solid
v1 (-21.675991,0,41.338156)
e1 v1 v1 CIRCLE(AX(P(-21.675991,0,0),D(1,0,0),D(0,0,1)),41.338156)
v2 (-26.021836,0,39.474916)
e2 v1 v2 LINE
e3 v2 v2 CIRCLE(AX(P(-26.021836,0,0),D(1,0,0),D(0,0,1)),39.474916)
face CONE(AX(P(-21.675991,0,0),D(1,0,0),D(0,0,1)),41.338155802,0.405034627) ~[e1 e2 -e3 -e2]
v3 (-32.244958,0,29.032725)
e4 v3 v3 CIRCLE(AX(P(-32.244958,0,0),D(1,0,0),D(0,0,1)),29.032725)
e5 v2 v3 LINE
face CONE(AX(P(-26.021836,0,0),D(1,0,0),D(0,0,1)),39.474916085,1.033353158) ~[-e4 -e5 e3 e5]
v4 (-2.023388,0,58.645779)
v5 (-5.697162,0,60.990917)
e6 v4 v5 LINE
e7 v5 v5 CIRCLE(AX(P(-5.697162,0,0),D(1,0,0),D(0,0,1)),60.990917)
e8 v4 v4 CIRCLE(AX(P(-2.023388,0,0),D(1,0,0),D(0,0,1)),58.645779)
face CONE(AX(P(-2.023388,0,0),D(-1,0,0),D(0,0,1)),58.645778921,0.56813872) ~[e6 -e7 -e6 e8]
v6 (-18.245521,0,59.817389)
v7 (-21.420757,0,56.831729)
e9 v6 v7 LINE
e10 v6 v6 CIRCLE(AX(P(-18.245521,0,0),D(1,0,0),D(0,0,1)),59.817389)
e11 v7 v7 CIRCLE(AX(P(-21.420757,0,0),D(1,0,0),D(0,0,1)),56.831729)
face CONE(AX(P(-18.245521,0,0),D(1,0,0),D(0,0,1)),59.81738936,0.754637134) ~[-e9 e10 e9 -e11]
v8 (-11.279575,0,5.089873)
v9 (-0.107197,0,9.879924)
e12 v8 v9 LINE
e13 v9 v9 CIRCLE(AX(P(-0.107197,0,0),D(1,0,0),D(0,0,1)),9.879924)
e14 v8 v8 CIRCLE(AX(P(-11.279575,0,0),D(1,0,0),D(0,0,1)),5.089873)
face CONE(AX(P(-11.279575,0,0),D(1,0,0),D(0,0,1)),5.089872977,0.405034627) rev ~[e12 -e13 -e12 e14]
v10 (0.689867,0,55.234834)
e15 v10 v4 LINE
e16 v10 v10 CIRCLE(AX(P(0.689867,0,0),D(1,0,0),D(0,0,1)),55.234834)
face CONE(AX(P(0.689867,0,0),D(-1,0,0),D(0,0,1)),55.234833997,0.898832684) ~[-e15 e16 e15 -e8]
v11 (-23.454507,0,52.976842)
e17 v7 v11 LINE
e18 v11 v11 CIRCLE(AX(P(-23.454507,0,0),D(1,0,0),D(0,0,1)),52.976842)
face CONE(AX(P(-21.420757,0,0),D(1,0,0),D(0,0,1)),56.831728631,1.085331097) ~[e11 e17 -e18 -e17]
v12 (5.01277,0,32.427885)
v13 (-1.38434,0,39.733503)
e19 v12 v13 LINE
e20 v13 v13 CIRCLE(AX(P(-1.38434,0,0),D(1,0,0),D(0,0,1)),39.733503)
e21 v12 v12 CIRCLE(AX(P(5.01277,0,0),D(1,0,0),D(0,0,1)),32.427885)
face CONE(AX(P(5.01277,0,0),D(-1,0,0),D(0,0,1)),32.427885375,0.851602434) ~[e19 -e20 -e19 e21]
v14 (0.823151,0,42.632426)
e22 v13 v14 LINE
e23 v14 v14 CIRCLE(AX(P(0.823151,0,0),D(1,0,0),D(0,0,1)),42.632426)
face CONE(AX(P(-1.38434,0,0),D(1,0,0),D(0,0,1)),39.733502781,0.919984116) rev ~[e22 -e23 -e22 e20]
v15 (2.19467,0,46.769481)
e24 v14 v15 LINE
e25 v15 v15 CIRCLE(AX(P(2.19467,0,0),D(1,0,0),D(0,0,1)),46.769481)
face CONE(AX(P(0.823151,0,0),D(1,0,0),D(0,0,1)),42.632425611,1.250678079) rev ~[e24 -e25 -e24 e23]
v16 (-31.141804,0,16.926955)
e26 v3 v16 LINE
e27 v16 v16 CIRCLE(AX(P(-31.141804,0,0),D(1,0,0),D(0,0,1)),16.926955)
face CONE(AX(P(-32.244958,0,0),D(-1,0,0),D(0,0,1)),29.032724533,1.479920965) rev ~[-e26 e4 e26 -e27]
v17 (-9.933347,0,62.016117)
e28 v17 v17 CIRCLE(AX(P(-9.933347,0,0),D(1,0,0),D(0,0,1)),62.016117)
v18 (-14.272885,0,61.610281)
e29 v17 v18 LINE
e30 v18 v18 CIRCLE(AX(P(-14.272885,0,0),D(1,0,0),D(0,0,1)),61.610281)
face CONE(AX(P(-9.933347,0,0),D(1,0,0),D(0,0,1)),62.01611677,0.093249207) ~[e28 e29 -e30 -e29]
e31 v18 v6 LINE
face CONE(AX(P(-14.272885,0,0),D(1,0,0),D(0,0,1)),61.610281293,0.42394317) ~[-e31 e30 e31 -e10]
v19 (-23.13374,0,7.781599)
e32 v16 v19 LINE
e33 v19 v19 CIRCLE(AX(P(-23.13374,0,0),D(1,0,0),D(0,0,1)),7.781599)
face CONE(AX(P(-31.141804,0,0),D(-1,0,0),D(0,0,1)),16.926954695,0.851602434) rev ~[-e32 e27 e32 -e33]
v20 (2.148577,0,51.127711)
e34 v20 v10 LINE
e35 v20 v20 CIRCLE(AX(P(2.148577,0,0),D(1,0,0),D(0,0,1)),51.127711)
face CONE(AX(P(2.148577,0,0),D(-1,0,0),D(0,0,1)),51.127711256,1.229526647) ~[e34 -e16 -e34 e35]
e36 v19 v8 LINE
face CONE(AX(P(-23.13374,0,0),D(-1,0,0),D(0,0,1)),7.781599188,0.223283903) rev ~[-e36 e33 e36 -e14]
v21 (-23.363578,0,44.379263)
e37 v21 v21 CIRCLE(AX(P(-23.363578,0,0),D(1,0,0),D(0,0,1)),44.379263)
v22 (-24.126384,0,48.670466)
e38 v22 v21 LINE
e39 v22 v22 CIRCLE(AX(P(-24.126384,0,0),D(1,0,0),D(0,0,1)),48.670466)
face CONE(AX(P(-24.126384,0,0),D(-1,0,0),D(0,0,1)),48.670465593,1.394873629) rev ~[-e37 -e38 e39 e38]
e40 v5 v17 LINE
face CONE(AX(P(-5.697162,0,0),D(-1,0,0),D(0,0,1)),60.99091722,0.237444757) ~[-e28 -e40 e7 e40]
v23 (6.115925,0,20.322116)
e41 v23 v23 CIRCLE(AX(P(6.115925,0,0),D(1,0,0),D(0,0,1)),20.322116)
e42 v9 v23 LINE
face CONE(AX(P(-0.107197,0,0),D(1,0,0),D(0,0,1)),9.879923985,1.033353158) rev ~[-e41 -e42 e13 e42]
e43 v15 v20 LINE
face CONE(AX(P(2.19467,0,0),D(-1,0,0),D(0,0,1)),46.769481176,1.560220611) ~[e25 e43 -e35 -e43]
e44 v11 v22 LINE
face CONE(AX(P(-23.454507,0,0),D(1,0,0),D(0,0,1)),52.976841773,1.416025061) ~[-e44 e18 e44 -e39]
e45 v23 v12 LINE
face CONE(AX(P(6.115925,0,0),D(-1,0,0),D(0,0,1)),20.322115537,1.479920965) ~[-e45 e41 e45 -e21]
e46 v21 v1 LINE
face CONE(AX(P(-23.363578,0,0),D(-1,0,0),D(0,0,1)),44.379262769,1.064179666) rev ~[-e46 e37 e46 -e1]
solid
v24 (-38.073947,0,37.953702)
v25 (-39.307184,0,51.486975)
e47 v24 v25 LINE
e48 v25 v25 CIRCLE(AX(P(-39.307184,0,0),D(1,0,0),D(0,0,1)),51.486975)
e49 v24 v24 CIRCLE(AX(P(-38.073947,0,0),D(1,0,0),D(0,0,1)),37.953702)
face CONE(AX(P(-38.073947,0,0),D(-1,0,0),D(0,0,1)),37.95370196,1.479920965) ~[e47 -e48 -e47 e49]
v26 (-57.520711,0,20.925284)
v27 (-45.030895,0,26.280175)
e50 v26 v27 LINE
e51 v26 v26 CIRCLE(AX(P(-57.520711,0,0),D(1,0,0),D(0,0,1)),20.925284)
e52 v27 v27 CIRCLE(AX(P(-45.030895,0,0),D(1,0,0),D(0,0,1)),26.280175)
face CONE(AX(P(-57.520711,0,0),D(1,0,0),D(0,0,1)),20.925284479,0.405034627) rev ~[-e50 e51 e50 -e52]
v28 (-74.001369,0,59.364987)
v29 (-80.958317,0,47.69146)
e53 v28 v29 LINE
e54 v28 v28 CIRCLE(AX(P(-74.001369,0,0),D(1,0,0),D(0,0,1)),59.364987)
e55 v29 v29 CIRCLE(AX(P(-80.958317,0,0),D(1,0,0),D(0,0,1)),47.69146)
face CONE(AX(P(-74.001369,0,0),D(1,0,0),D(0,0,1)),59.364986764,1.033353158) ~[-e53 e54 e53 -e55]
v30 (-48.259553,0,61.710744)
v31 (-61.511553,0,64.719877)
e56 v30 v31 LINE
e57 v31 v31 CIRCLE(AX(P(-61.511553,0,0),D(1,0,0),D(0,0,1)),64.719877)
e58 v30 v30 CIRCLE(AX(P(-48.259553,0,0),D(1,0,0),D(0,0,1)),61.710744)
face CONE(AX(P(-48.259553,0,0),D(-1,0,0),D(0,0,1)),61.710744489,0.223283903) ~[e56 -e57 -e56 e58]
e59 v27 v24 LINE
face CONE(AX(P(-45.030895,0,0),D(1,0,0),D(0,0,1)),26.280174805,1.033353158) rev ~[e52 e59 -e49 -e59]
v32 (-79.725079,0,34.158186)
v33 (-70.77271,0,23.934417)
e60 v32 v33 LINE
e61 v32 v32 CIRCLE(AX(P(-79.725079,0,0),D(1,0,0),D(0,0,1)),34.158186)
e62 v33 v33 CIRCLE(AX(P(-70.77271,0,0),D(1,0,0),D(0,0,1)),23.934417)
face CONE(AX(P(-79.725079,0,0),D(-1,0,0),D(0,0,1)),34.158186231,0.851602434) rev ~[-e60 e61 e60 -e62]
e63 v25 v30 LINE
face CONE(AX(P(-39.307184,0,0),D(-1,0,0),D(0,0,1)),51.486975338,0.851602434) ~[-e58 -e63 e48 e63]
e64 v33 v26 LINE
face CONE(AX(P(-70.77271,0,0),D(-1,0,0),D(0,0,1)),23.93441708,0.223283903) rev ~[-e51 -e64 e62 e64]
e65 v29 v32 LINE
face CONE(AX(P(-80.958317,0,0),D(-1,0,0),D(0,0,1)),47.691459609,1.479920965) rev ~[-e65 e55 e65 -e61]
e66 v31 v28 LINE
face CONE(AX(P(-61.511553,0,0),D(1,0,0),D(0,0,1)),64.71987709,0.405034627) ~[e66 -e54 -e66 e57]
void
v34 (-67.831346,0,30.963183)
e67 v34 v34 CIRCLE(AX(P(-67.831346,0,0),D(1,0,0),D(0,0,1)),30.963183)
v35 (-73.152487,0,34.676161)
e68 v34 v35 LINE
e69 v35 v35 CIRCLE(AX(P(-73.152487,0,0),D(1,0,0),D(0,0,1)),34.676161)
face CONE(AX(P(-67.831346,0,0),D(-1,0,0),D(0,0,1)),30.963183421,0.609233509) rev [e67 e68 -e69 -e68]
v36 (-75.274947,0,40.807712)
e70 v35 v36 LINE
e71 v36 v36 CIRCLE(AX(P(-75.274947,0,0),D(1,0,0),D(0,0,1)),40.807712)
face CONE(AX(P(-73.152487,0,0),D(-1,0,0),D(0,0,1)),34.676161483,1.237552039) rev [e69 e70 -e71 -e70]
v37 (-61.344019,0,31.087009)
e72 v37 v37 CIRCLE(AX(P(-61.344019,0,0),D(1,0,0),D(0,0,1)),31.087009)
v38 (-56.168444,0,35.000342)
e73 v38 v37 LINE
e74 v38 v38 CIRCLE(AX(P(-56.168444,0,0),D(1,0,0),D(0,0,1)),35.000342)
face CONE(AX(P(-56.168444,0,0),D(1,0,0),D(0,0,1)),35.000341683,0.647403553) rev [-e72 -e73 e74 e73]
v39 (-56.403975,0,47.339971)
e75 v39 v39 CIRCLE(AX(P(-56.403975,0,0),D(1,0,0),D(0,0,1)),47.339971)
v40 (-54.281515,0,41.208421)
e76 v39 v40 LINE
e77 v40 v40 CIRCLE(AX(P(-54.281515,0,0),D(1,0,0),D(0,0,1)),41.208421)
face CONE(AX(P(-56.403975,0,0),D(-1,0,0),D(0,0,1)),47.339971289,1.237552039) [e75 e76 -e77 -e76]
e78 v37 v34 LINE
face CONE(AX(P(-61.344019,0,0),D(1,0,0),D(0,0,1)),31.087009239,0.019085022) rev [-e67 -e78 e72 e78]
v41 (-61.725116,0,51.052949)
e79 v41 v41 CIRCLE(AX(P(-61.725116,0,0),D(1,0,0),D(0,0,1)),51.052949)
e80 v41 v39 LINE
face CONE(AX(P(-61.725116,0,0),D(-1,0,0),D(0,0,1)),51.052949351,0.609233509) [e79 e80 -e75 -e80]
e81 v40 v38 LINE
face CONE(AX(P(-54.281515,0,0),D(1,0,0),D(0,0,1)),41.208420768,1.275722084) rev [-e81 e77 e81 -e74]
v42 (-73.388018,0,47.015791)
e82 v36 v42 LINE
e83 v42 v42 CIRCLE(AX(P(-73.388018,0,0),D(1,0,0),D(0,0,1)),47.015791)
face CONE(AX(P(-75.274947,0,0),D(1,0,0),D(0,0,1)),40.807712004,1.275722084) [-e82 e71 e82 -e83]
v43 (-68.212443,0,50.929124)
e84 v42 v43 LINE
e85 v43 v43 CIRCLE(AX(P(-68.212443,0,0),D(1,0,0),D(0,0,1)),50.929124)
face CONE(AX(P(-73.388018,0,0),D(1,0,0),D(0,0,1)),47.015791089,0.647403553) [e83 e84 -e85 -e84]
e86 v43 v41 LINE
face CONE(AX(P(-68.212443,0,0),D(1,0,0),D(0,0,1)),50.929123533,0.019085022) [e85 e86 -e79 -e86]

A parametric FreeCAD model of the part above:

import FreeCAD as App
import Part
import Sketcher

V = App.Vector
Q = App.Units.Quantity


def add_polygon(sketch, points):
    """Adds a closed chain of lines whose ends are joined by coincident constraints."""
    first, n = sketch.GeometryCount, len(points)
    for a, b in zip(points, points[1:] + points[:1]):
        sketch.addGeometry(Part.LineSegment(App.Vector(*a, 0), App.Vector(*b, 0)), False)
    for i in range(n):
        sketch.addConstraint(Sketcher.Constraint("Coincident", first + i, 2, first + (i + 1) % n, 1))

doc = App.newDocument("Part")
body = doc.addObject("PartDesign::Body", "Body")

sketch1 = doc.addObject("Sketcher::SketchObject", "Sketch")
body.addObject(sketch1)
sketch1.AttachmentSupport = (doc.XZ_Plane, [""])
sketch1.MapMode = "FlatFace"
add_polygon(sketch1, [(-45, 26), (-38, 38), (-39, 51), (-48, 62), (-62, 65), (-74, 59), (-81, 48), (-80, 34), (-71, 24), (-58, 21)])
add_polygon(sketch1, [(-68, 51), (-62, 51), (-56, 47), (-54, 41), (-56, 35), (-61, 31), (-68, 31), (-73, 35), (-75, 41), (-73, 47)])
sketch1.addConstraint(Sketcher.Constraint("Parallel", 0, 5))
sketch1.addConstraint(Sketcher.Constraint("Parallel", 1, 6))
sketch1.addConstraint(Sketcher.Constraint("Parallel", 2, 7))
sketch1.addConstraint(Sketcher.Constraint("Parallel", 3, 8))
sketch1.addConstraint(Sketcher.Constraint("Parallel", 4, 9))
sketch1.addConstraint(Sketcher.Constraint("Parallel", 10, 15))
sketch1.addConstraint(Sketcher.Constraint("Parallel", 11, 16))
sketch1.addConstraint(Sketcher.Constraint("Parallel", 12, 17))
sketch1.addConstraint(Sketcher.Constraint("Parallel", 13, 18))
sketch1.addConstraint(Sketcher.Constraint("Parallel", 14, 19))
sketch1.addConstraint(Sketcher.Constraint("Equal", 0, 1))
sketch1.addConstraint(Sketcher.Constraint("Equal", 1, 2))
sketch1.addConstraint(Sketcher.Constraint("Equal", 2, 3))
sketch1.addConstraint(Sketcher.Constraint("Equal", 3, 4))
sketch1.addConstraint(Sketcher.Constraint("Equal", 4, 5))
sketch1.addConstraint(Sketcher.Constraint("Equal", 5, 6))
sketch1.addConstraint(Sketcher.Constraint("Equal", 6, 7))
sketch1.addConstraint(Sketcher.Constraint("Equal", 10, 11))
sketch1.addConstraint(Sketcher.Constraint("Equal", 11, 12))
sketch1.addConstraint(Sketcher.Constraint("Equal", 12, 13))
sketch1.addConstraint(Sketcher.Constraint("Equal", 13, 14))
sketch1.addConstraint(Sketcher.Constraint("Equal", 14, 15))
sketch1.addConstraint(Sketcher.Constraint("Equal", 15, 16))
sketch1.addConstraint(Sketcher.Constraint("Equal", 16, 17))
sketch1.addConstraint(Sketcher.Constraint("DistanceX", 3, 2, 2, 2, Q("13.251999 mm")))
sketch1.addConstraint(Sketcher.Constraint("DistanceY", -1, 1, 0, 2, Q("37.953702 mm")))
sketch1.addConstraint(Sketcher.Constraint("DistanceY", 1, 2, 3, 2, Q("13.232902 mm")))
sketch1.addConstraint(Sketcher.Constraint("DistanceY", 6, 2, 4, 2, Q("25.206801 mm")))
sketch1.addConstraint(Sketcher.Constraint("DistanceX", 5, 2, 10, 2, Q("19.233201 mm")))
sketch1.addConstraint(Sketcher.Constraint("DistanceX", 10, 2, 12, 2, Q("7.443601 mm")))
sketch1.addConstraint(Sketcher.Constraint("DistanceY", 8, 2, 15, 2, Q("10.037899 mm")))
sketch1.addConstraint(Sketcher.Constraint("DistanceY", 16, 2, 5, 2, Q("13.015298 mm")))
sketch1.addConstraint(Sketcher.Constraint("DistanceX", 5, 2, 18, 2, Q("7.570299 mm")))
sketch1.addConstraint(Sketcher.Constraint("Distance", 10, Q("6.488509 mm")))
sketch1.addConstraint(Sketcher.Constraint("DistanceX", 4, 2, -1, 1, Q("74.001369 mm")))
sketch1.addConstraint(Sketcher.Constraint("DistanceY", -1, 1, 5, 2, Q("47.69146 mm")))
sketch1.addConstraint(Sketcher.Constraint("DistanceX", 6, 2, -1, 1, Q("79.725079 mm")))
sketch1.addConstraint(Sketcher.Constraint("DistanceX", 7, 2, -1, 1, Q("70.77271 mm")))
sketch1.addConstraint(Sketcher.Constraint("DistanceY", -1, 1, 10, 2, Q("51.052949 mm")))
sketch1.addConstraint(Sketcher.Constraint("DistanceY", -1, 1, 13, 2, Q("35.000342 mm")))
revolution = doc.addObject("PartDesign::Revolution", "Revolution")
body.addObject(revolution)
revolution.Profile = sketch1
revolution.ReferenceAxis = (sketch1, ["H_Axis"])
revolution.Angle = 360
body2 = doc.addObject("PartDesign::Body", "Body001")

sketch2 = doc.addObject("Sketcher::SketchObject", "Sketch001")
body2.addObject(sketch2)
sketch2.AttachmentSupport = (doc.getObject("XZ_Plane001"), [""])
sketch2.MapMode = "FlatFace"
add_polygon(sketch2, [(-26, 39.5), (-32.2, 29), (-31.1, 16.9), (-23.1, 7.8), (-11.3, 5.1), (-0.1, 9.9), (6.1, 20.3), (5, 32.4), (-1.4, 39.7), (0.8, 42.6), (2.2, 46.8), (2.1, 51.1), (0.7, 55.2), (-2, 58.6), (-5.7, 61), (-9.9, 62), (-14.3, 61.6), (-18.2, 59.8), (-21.4, 56.8), (-23.5, 53), (-24.1, 48.7), (-23.4, 44.4), (-21.7, 41.3)])
sketch2.addConstraint(Sketcher.Constraint("Parallel", 0, 5))
sketch2.addConstraint(Sketcher.Constraint("Parallel", 1, 6))
sketch2.addConstraint(Sketcher.Constraint("Parallel", 2, 7))
sketch2.addConstraint(Sketcher.Constraint("Parallel", 4, 22))
sketch2.addConstraint(Sketcher.Constraint("Equal", 0, 1))
sketch2.addConstraint(Sketcher.Constraint("Equal", 1, 2))
sketch2.addConstraint(Sketcher.Constraint("Equal", 2, 3))
sketch2.addConstraint(Sketcher.Constraint("Equal", 3, 4))
sketch2.addConstraint(Sketcher.Constraint("Equal", 4, 5))
sketch2.addConstraint(Sketcher.Constraint("Equal", 5, 6))
sketch2.addConstraint(Sketcher.Constraint("Equal", 9, 10))
sketch2.addConstraint(Sketcher.Constraint("Equal", 10, 11))
sketch2.addConstraint(Sketcher.Constraint("Equal", 11, 12))
sketch2.addConstraint(Sketcher.Constraint("Equal", 12, 13))
sketch2.addConstraint(Sketcher.Constraint("Equal", 13, 14))
sketch2.addConstraint(Sketcher.Constraint("Equal", 14, 15))
sketch2.addConstraint(Sketcher.Constraint("Equal", 15, 16))
sketch2.addConstraint(Sketcher.Constraint("Equal", 16, 17))
sketch2.addConstraint(Sketcher.Constraint("Equal", 17, 18))
sketch2.addConstraint(Sketcher.Constraint("Equal", 18, 19))
sketch2.addConstraint(Sketcher.Constraint("Equal", 19, 20))
sketch2.addConstraint(Sketcher.Constraint("DistanceY", -1, 1, 2, 2, Q("7.781599 mm")))
sketch2.addConstraint(Sketcher.Constraint("DistanceY", 4, 2, 0, 2, Q("19.152801 mm")))
sketch2.addConstraint(Sketcher.Constraint("DistanceX", 3, 2, 5, 2, Q("17.3955 mm")))
sketch2.addConstraint(Sketcher.Constraint("DistanceY", 4, 2, 8, 2, Q("32.752502 mm")))
sketch2.addConstraint(Sketcher.Constraint("DistanceX", 9, 2, 6, 2, Q("2.8181 mm")))
sketch2.addConstraint(Sketcher.Constraint("DistanceY", 13, 2, 14, 2, Q("1.0252 mm")))
sketch2.addConstraint(Sketcher.Constraint("DistanceX", 19, 2, 15, 2, Q("9.853499 mm")))
sketch2.addConstraint(Sketcher.Constraint("Distance", 0, Q("12.155929 mm")))
sketch2.addConstraint(Sketcher.Constraint("Distance", 8, Q("3.643731 mm")))
sketch2.addConstraint(Sketcher.Constraint("Distance", 21, Q("3.477971 mm")))
sketch2.addConstraint(Sketcher.Constraint("DistanceX", 0, 2, -1, 1, Q("32.244958 mm")))
sketch2.addConstraint(Sketcher.Constraint("DistanceX", 2, 2, -1, 1, Q("23.13374 mm")))
sketch2.addConstraint(Sketcher.Constraint("DistanceX", -1, 1, 6, 2, Q("5.01277 mm")))
sketch2.addConstraint(Sketcher.Constraint("DistanceX", 7, 2, -1, 1, Q("1.38434 mm")))
sketch2.addConstraint(Sketcher.Constraint("DistanceX", -1, 1, 8, 2, Q("0.823151 mm")))
sketch2.addConstraint(Sketcher.Constraint("DistanceY", -1, 1, 9, 2, Q("46.769481 mm")))
sketch2.addConstraint(Sketcher.Constraint("DistanceY", -1, 1, 10, 2, Q("51.127711 mm")))
sketch2.addConstraint(Sketcher.Constraint("DistanceY", -1, 1, 12, 2, Q("58.645779 mm")))
sketch2.addConstraint(Sketcher.Constraint("DistanceY", -1, 1, 15, 2, Q("61.610281 mm")))
sketch2.addConstraint(Sketcher.Constraint("DistanceX", 16, 2, -1, 1, Q("18.245521 mm")))
sketch2.addConstraint(Sketcher.Constraint("DistanceY", -1, 1, 16, 2, Q("59.817389 mm")))
sketch2.addConstraint(Sketcher.Constraint("DistanceY", -1, 1, 17, 2, Q("56.831729 mm")))
sketch2.addConstraint(Sketcher.Constraint("DistanceY", -1, 1, 18, 2, Q("52.976842 mm")))
sketch2.addConstraint(Sketcher.Constraint("DistanceX", 20, 2, -1, 1, Q("23.363578 mm")))
sketch2.addConstraint(Sketcher.Constraint("DistanceX", 11, 2, 10, 2, Q("1.458711 mm")))
revolution2 = doc.addObject("PartDesign::Revolution", "Revolution001")
body2.addObject(revolution2)
revolution2.Profile = sketch2
revolution2.ReferenceAxis = (sketch2, ["H_Axis"])
revolution2.Angle = 360

doc.recompute()
